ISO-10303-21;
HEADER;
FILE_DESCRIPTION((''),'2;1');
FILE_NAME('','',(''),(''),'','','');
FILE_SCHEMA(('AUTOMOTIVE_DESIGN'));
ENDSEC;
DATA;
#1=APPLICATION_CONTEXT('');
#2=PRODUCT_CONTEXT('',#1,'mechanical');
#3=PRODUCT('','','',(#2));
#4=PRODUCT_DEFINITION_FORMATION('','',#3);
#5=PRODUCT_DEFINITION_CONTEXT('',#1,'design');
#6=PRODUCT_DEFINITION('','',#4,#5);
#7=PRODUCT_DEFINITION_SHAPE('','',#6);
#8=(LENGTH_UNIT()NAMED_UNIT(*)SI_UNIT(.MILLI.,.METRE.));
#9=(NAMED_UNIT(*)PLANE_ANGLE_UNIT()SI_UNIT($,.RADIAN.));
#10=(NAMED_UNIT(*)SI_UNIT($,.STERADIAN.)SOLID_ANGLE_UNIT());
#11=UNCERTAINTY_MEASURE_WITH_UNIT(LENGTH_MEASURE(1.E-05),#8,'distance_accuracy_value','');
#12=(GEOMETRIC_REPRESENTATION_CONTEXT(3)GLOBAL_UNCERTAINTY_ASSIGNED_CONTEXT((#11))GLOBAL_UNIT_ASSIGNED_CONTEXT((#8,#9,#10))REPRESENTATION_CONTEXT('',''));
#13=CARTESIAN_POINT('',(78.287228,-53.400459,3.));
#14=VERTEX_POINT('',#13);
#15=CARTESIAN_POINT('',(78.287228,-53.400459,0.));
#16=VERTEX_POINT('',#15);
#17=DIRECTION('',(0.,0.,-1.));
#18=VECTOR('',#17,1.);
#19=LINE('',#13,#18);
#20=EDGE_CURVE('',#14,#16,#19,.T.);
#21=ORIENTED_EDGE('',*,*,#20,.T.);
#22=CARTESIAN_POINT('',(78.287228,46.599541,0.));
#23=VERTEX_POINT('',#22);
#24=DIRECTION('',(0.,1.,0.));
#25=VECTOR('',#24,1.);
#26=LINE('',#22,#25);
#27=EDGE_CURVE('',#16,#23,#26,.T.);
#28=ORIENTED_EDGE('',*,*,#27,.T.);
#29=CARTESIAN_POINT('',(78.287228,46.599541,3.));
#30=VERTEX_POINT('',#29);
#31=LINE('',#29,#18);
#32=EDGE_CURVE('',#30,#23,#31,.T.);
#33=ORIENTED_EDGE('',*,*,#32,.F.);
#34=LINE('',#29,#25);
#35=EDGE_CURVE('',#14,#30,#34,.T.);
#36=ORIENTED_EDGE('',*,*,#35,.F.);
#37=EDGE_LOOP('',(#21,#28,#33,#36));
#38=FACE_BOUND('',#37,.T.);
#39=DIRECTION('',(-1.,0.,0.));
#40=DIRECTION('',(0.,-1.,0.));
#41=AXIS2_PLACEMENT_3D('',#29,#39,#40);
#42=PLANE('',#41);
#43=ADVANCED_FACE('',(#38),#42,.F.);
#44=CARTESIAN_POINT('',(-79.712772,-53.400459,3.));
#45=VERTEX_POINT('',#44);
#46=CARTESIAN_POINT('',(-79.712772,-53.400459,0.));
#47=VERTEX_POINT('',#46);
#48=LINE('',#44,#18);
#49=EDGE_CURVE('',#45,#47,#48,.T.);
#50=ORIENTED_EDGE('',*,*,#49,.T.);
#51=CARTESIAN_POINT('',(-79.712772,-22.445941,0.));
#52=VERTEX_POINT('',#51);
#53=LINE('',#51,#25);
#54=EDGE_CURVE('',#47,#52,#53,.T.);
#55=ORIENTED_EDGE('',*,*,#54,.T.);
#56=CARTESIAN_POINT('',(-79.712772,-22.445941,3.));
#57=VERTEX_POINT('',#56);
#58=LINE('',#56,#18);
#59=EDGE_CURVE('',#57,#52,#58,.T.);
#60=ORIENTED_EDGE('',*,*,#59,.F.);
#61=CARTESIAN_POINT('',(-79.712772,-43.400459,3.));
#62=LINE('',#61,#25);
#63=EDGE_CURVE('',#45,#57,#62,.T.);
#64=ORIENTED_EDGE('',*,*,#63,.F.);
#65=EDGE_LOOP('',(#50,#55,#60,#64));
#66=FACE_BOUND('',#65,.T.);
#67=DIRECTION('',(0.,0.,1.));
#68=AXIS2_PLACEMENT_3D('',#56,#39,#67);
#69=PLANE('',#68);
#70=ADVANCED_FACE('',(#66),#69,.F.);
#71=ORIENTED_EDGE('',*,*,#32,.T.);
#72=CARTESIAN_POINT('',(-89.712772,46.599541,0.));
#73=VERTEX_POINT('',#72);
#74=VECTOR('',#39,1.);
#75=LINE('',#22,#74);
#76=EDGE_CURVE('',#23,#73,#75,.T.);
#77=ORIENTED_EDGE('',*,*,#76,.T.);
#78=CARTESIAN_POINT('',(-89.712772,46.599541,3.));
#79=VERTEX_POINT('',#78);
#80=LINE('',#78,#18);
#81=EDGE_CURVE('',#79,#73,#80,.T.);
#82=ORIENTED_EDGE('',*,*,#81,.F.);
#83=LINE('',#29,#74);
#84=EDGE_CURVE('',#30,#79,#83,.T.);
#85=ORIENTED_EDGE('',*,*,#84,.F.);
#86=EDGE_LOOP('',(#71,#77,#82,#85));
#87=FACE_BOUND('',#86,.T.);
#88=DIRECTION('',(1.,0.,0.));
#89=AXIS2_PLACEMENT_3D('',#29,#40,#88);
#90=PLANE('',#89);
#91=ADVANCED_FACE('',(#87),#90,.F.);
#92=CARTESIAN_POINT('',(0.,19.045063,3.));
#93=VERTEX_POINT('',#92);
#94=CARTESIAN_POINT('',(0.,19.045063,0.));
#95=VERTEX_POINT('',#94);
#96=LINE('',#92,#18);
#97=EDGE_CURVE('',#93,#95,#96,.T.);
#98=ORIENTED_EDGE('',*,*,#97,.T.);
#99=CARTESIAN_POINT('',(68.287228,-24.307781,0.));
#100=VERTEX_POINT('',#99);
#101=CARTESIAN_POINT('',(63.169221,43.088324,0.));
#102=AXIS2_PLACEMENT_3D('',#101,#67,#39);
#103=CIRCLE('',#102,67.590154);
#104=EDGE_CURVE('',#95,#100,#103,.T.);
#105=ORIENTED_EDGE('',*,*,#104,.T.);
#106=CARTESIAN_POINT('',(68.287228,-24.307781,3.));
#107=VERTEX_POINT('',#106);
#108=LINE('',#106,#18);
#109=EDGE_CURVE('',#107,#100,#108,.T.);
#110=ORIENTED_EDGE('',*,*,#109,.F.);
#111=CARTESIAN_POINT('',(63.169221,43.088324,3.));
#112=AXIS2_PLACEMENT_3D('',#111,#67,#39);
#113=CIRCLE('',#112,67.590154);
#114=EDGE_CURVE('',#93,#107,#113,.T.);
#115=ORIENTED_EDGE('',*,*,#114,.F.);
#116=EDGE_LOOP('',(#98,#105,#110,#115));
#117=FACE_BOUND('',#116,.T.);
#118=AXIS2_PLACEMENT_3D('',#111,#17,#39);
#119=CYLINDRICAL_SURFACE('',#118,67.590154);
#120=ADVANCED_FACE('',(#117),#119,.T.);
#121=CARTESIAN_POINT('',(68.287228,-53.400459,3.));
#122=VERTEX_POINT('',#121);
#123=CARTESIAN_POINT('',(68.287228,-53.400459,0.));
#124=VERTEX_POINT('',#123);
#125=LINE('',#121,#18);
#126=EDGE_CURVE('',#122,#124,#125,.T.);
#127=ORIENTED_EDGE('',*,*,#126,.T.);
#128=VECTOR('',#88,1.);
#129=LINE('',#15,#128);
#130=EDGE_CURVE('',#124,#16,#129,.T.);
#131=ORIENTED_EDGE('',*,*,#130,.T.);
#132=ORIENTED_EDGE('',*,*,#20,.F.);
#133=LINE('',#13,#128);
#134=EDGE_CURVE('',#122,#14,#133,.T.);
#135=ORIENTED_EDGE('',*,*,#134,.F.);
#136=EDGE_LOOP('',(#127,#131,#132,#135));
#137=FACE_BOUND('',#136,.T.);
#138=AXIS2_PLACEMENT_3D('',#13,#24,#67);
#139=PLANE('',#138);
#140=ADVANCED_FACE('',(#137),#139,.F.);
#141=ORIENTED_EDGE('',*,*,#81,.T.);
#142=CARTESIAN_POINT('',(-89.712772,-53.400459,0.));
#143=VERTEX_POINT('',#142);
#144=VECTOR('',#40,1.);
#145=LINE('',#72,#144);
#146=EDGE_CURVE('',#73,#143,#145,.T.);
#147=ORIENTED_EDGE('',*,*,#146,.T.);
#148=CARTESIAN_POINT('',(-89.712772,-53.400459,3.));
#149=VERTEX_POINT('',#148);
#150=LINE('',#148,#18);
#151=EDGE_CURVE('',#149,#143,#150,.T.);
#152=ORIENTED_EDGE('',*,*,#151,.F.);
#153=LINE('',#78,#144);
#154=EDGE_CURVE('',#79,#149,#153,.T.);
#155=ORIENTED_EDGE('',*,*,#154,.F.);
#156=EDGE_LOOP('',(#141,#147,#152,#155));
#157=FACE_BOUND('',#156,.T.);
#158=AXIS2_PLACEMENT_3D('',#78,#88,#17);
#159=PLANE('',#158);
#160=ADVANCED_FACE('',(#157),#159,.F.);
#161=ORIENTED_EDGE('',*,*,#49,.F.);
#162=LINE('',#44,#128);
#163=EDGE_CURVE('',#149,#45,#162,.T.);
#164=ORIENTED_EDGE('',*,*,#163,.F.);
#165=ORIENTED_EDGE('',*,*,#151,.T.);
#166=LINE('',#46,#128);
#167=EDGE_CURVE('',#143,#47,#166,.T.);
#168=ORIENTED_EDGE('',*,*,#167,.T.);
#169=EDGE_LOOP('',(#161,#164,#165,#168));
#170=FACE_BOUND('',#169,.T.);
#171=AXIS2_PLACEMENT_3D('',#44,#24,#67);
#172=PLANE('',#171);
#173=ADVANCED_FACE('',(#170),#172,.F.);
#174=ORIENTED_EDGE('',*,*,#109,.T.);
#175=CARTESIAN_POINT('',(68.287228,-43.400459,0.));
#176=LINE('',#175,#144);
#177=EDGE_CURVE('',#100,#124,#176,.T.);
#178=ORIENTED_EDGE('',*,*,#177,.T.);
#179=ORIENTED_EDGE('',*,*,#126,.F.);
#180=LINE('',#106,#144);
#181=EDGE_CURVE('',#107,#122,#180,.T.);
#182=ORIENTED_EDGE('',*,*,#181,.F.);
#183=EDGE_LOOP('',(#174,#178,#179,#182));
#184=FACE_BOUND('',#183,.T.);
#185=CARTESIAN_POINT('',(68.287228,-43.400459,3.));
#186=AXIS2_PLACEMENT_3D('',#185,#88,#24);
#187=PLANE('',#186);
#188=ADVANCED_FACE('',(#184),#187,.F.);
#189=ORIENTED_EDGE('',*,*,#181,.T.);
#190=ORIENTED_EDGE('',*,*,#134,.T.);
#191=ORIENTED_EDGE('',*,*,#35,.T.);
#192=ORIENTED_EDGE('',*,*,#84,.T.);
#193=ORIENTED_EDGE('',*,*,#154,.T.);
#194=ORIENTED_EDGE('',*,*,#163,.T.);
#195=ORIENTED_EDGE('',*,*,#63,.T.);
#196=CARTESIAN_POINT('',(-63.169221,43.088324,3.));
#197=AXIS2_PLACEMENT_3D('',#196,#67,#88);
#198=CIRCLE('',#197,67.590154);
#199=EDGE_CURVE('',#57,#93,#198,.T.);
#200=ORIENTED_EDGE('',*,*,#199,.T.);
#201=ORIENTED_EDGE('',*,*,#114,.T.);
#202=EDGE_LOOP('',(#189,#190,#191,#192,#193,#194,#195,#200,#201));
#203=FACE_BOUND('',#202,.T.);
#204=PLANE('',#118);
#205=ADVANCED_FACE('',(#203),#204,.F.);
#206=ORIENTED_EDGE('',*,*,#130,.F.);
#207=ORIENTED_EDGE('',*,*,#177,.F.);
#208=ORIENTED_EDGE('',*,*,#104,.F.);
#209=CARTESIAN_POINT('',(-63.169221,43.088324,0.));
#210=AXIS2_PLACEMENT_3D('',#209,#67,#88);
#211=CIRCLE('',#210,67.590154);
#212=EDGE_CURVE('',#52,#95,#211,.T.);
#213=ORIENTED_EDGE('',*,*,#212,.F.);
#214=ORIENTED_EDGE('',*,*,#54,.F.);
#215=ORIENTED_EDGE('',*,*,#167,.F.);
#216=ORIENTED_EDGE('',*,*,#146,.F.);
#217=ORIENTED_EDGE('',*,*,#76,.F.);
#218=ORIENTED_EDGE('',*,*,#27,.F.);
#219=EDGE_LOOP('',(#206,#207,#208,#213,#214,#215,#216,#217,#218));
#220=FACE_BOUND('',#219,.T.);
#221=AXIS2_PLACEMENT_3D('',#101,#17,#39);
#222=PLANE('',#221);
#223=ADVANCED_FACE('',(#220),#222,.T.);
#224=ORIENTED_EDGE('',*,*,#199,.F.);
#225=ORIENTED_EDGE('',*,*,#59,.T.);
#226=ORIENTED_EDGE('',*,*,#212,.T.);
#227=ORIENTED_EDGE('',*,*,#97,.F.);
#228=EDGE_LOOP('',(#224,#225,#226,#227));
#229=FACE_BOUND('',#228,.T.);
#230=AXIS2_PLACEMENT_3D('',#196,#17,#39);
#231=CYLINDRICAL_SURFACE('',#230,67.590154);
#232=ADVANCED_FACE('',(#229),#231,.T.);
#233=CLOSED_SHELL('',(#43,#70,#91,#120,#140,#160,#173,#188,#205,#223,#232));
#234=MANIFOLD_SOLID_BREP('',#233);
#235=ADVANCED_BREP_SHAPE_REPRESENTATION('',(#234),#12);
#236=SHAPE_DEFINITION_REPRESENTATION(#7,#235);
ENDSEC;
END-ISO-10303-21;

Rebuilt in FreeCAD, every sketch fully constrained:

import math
import FreeCAD as App
import Part
import Sketcher
Q = App.Units.Quantity

doc = App.newDocument("Part")
body = doc.addObject("PartDesign::Body", "Body")

# Sketch on XY plane
sketch1 = body.newObject("Sketcher::SketchObject", "Sketch")
sketch1.AttachmentSupport = (doc.getObject("XY_Plane"), [""])
sketch1.MapMode = "FlatFace"
sketch1.addGeometry(Part.LineSegment(App.Vector(68, -24, 0), App.Vector(68, -53, 0)), False)
sketch1.addGeometry(Part.LineSegment(App.Vector(68, -53, 0), App.Vector(78, -53, 0)), False)
sketch1.addGeometry(Part.LineSegment(App.Vector(78, -53, 0), App.Vector(78, 47, 0)), False)
sketch1.addGeometry(Part.LineSegment(App.Vector(78, 47, 0), App.Vector(-90, 47, 0)), False)
sketch1.addGeometry(Part.LineSegment(App.Vector(-90, 47, 0), App.Vector(-90, -53, 0)), False)
sketch1.addGeometry(Part.LineSegment(App.Vector(-90, -53, 0), App.Vector(-80, -53, 0)), False)
sketch1.addGeometry(Part.LineSegment(App.Vector(-80, -53, 0), App.Vector(-80, -22, 0)), False)
sketch1.addGeometry(Part.ArcOfCircle(Part.Circle(App.Vector(-63, 43, 0), App.Vector(0, 0, 1), 68), math.radians(-104), math.radians(-21)), False)
sketch1.addGeometry(Part.ArcOfCircle(Part.Circle(App.Vector(63, 43, 0), App.Vector(0, 0, 1), 68), math.radians(-159), math.radians(-86)), False)
sketch1.addConstraint(Sketcher.Constraint("Coincident", 0, 2, 1, 1))
sketch1.addConstraint(Sketcher.Constraint("Coincident", 1, 2, 2, 1))
sketch1.addConstraint(Sketcher.Constraint("Coincident", 2, 2, 3, 1))
sketch1.addConstraint(Sketcher.Constraint("Coincident", 3, 2, 4, 1))
sketch1.addConstraint(Sketcher.Constraint("Coincident", 4, 2, 5, 1))
sketch1.addConstraint(Sketcher.Constraint("Coincident", 5, 2, 6, 1))
sketch1.addConstraint(Sketcher.Constraint("Coincident", 6, 2, 7, 1))
sketch1.addConstraint(Sketcher.Constraint("Coincident", 7, 2, 8, 1))
sketch1.addConstraint(Sketcher.Constraint("Coincident", 8, 2, 0, 1))
sketch1.addConstraint(Sketcher.Constraint("Vertical", 0))
sketch1.addConstraint(Sketcher.Constraint("Horizontal", 1))
sketch1.addConstraint(Sketcher.Constraint("Vertical", 2))
sketch1.addConstraint(Sketcher.Constraint("Horizontal", 3))
sketch1.addConstraint(Sketcher.Constraint("Vertical", 4))
sketch1.addConstraint(Sketcher.Constraint("Horizontal", 5))
sketch1.addConstraint(Sketcher.Constraint("Vertical", 6))
sketch1.addConstraint(Sketcher.Constraint("Equal", 7, 8))
sketch1.addConstraint(Sketcher.Constraint("Symmetric", 7, 3, 8, 3, -2))
sketch1.addConstraint(Sketcher.Constraint("Horizontal", 1, 2, 4, 2))
sketch1.addConstraint(Sketcher.Constraint("Equal", 1, 5))
sketch1.addConstraint(Sketcher.Constraint("DistanceX", 1, 1, 1, 2, Q("10 mm")))
sketch1.addConstraint(Sketcher.Constraint("DistanceX", 3, 2, 3, 1, Q("168 mm")))
sketch1.addConstraint(Sketcher.Constraint("DistanceY", 2, 1, 2, 2, Q("100 mm")))
sketch1.addConstraint(Sketcher.Constraint("Radius", 7, Q("67.590154 mm")))
sketch1.addConstraint(Sketcher.Constraint("DistanceY", 0, 2, 0, 1, Q("29.092679 mm")))
sketch1.addConstraint(Sketcher.Constraint("DistanceY", 6, 1, 6, 2, Q("30.954519 mm")))
sketch1.addConstraint(Sketcher.Constraint("DistanceX", 7, 3, -1, 1, Q("63.169221 mm")))
sketch1.addConstraint(Sketcher.Constraint("DistanceY", 0, 2, -1, 1, Q("53.400459 mm")))
pad1 = body.newObject("PartDesign::Pad", "Pad")
pad1.Profile = sketch1
pad1.Length = 3

doc.recompute()
